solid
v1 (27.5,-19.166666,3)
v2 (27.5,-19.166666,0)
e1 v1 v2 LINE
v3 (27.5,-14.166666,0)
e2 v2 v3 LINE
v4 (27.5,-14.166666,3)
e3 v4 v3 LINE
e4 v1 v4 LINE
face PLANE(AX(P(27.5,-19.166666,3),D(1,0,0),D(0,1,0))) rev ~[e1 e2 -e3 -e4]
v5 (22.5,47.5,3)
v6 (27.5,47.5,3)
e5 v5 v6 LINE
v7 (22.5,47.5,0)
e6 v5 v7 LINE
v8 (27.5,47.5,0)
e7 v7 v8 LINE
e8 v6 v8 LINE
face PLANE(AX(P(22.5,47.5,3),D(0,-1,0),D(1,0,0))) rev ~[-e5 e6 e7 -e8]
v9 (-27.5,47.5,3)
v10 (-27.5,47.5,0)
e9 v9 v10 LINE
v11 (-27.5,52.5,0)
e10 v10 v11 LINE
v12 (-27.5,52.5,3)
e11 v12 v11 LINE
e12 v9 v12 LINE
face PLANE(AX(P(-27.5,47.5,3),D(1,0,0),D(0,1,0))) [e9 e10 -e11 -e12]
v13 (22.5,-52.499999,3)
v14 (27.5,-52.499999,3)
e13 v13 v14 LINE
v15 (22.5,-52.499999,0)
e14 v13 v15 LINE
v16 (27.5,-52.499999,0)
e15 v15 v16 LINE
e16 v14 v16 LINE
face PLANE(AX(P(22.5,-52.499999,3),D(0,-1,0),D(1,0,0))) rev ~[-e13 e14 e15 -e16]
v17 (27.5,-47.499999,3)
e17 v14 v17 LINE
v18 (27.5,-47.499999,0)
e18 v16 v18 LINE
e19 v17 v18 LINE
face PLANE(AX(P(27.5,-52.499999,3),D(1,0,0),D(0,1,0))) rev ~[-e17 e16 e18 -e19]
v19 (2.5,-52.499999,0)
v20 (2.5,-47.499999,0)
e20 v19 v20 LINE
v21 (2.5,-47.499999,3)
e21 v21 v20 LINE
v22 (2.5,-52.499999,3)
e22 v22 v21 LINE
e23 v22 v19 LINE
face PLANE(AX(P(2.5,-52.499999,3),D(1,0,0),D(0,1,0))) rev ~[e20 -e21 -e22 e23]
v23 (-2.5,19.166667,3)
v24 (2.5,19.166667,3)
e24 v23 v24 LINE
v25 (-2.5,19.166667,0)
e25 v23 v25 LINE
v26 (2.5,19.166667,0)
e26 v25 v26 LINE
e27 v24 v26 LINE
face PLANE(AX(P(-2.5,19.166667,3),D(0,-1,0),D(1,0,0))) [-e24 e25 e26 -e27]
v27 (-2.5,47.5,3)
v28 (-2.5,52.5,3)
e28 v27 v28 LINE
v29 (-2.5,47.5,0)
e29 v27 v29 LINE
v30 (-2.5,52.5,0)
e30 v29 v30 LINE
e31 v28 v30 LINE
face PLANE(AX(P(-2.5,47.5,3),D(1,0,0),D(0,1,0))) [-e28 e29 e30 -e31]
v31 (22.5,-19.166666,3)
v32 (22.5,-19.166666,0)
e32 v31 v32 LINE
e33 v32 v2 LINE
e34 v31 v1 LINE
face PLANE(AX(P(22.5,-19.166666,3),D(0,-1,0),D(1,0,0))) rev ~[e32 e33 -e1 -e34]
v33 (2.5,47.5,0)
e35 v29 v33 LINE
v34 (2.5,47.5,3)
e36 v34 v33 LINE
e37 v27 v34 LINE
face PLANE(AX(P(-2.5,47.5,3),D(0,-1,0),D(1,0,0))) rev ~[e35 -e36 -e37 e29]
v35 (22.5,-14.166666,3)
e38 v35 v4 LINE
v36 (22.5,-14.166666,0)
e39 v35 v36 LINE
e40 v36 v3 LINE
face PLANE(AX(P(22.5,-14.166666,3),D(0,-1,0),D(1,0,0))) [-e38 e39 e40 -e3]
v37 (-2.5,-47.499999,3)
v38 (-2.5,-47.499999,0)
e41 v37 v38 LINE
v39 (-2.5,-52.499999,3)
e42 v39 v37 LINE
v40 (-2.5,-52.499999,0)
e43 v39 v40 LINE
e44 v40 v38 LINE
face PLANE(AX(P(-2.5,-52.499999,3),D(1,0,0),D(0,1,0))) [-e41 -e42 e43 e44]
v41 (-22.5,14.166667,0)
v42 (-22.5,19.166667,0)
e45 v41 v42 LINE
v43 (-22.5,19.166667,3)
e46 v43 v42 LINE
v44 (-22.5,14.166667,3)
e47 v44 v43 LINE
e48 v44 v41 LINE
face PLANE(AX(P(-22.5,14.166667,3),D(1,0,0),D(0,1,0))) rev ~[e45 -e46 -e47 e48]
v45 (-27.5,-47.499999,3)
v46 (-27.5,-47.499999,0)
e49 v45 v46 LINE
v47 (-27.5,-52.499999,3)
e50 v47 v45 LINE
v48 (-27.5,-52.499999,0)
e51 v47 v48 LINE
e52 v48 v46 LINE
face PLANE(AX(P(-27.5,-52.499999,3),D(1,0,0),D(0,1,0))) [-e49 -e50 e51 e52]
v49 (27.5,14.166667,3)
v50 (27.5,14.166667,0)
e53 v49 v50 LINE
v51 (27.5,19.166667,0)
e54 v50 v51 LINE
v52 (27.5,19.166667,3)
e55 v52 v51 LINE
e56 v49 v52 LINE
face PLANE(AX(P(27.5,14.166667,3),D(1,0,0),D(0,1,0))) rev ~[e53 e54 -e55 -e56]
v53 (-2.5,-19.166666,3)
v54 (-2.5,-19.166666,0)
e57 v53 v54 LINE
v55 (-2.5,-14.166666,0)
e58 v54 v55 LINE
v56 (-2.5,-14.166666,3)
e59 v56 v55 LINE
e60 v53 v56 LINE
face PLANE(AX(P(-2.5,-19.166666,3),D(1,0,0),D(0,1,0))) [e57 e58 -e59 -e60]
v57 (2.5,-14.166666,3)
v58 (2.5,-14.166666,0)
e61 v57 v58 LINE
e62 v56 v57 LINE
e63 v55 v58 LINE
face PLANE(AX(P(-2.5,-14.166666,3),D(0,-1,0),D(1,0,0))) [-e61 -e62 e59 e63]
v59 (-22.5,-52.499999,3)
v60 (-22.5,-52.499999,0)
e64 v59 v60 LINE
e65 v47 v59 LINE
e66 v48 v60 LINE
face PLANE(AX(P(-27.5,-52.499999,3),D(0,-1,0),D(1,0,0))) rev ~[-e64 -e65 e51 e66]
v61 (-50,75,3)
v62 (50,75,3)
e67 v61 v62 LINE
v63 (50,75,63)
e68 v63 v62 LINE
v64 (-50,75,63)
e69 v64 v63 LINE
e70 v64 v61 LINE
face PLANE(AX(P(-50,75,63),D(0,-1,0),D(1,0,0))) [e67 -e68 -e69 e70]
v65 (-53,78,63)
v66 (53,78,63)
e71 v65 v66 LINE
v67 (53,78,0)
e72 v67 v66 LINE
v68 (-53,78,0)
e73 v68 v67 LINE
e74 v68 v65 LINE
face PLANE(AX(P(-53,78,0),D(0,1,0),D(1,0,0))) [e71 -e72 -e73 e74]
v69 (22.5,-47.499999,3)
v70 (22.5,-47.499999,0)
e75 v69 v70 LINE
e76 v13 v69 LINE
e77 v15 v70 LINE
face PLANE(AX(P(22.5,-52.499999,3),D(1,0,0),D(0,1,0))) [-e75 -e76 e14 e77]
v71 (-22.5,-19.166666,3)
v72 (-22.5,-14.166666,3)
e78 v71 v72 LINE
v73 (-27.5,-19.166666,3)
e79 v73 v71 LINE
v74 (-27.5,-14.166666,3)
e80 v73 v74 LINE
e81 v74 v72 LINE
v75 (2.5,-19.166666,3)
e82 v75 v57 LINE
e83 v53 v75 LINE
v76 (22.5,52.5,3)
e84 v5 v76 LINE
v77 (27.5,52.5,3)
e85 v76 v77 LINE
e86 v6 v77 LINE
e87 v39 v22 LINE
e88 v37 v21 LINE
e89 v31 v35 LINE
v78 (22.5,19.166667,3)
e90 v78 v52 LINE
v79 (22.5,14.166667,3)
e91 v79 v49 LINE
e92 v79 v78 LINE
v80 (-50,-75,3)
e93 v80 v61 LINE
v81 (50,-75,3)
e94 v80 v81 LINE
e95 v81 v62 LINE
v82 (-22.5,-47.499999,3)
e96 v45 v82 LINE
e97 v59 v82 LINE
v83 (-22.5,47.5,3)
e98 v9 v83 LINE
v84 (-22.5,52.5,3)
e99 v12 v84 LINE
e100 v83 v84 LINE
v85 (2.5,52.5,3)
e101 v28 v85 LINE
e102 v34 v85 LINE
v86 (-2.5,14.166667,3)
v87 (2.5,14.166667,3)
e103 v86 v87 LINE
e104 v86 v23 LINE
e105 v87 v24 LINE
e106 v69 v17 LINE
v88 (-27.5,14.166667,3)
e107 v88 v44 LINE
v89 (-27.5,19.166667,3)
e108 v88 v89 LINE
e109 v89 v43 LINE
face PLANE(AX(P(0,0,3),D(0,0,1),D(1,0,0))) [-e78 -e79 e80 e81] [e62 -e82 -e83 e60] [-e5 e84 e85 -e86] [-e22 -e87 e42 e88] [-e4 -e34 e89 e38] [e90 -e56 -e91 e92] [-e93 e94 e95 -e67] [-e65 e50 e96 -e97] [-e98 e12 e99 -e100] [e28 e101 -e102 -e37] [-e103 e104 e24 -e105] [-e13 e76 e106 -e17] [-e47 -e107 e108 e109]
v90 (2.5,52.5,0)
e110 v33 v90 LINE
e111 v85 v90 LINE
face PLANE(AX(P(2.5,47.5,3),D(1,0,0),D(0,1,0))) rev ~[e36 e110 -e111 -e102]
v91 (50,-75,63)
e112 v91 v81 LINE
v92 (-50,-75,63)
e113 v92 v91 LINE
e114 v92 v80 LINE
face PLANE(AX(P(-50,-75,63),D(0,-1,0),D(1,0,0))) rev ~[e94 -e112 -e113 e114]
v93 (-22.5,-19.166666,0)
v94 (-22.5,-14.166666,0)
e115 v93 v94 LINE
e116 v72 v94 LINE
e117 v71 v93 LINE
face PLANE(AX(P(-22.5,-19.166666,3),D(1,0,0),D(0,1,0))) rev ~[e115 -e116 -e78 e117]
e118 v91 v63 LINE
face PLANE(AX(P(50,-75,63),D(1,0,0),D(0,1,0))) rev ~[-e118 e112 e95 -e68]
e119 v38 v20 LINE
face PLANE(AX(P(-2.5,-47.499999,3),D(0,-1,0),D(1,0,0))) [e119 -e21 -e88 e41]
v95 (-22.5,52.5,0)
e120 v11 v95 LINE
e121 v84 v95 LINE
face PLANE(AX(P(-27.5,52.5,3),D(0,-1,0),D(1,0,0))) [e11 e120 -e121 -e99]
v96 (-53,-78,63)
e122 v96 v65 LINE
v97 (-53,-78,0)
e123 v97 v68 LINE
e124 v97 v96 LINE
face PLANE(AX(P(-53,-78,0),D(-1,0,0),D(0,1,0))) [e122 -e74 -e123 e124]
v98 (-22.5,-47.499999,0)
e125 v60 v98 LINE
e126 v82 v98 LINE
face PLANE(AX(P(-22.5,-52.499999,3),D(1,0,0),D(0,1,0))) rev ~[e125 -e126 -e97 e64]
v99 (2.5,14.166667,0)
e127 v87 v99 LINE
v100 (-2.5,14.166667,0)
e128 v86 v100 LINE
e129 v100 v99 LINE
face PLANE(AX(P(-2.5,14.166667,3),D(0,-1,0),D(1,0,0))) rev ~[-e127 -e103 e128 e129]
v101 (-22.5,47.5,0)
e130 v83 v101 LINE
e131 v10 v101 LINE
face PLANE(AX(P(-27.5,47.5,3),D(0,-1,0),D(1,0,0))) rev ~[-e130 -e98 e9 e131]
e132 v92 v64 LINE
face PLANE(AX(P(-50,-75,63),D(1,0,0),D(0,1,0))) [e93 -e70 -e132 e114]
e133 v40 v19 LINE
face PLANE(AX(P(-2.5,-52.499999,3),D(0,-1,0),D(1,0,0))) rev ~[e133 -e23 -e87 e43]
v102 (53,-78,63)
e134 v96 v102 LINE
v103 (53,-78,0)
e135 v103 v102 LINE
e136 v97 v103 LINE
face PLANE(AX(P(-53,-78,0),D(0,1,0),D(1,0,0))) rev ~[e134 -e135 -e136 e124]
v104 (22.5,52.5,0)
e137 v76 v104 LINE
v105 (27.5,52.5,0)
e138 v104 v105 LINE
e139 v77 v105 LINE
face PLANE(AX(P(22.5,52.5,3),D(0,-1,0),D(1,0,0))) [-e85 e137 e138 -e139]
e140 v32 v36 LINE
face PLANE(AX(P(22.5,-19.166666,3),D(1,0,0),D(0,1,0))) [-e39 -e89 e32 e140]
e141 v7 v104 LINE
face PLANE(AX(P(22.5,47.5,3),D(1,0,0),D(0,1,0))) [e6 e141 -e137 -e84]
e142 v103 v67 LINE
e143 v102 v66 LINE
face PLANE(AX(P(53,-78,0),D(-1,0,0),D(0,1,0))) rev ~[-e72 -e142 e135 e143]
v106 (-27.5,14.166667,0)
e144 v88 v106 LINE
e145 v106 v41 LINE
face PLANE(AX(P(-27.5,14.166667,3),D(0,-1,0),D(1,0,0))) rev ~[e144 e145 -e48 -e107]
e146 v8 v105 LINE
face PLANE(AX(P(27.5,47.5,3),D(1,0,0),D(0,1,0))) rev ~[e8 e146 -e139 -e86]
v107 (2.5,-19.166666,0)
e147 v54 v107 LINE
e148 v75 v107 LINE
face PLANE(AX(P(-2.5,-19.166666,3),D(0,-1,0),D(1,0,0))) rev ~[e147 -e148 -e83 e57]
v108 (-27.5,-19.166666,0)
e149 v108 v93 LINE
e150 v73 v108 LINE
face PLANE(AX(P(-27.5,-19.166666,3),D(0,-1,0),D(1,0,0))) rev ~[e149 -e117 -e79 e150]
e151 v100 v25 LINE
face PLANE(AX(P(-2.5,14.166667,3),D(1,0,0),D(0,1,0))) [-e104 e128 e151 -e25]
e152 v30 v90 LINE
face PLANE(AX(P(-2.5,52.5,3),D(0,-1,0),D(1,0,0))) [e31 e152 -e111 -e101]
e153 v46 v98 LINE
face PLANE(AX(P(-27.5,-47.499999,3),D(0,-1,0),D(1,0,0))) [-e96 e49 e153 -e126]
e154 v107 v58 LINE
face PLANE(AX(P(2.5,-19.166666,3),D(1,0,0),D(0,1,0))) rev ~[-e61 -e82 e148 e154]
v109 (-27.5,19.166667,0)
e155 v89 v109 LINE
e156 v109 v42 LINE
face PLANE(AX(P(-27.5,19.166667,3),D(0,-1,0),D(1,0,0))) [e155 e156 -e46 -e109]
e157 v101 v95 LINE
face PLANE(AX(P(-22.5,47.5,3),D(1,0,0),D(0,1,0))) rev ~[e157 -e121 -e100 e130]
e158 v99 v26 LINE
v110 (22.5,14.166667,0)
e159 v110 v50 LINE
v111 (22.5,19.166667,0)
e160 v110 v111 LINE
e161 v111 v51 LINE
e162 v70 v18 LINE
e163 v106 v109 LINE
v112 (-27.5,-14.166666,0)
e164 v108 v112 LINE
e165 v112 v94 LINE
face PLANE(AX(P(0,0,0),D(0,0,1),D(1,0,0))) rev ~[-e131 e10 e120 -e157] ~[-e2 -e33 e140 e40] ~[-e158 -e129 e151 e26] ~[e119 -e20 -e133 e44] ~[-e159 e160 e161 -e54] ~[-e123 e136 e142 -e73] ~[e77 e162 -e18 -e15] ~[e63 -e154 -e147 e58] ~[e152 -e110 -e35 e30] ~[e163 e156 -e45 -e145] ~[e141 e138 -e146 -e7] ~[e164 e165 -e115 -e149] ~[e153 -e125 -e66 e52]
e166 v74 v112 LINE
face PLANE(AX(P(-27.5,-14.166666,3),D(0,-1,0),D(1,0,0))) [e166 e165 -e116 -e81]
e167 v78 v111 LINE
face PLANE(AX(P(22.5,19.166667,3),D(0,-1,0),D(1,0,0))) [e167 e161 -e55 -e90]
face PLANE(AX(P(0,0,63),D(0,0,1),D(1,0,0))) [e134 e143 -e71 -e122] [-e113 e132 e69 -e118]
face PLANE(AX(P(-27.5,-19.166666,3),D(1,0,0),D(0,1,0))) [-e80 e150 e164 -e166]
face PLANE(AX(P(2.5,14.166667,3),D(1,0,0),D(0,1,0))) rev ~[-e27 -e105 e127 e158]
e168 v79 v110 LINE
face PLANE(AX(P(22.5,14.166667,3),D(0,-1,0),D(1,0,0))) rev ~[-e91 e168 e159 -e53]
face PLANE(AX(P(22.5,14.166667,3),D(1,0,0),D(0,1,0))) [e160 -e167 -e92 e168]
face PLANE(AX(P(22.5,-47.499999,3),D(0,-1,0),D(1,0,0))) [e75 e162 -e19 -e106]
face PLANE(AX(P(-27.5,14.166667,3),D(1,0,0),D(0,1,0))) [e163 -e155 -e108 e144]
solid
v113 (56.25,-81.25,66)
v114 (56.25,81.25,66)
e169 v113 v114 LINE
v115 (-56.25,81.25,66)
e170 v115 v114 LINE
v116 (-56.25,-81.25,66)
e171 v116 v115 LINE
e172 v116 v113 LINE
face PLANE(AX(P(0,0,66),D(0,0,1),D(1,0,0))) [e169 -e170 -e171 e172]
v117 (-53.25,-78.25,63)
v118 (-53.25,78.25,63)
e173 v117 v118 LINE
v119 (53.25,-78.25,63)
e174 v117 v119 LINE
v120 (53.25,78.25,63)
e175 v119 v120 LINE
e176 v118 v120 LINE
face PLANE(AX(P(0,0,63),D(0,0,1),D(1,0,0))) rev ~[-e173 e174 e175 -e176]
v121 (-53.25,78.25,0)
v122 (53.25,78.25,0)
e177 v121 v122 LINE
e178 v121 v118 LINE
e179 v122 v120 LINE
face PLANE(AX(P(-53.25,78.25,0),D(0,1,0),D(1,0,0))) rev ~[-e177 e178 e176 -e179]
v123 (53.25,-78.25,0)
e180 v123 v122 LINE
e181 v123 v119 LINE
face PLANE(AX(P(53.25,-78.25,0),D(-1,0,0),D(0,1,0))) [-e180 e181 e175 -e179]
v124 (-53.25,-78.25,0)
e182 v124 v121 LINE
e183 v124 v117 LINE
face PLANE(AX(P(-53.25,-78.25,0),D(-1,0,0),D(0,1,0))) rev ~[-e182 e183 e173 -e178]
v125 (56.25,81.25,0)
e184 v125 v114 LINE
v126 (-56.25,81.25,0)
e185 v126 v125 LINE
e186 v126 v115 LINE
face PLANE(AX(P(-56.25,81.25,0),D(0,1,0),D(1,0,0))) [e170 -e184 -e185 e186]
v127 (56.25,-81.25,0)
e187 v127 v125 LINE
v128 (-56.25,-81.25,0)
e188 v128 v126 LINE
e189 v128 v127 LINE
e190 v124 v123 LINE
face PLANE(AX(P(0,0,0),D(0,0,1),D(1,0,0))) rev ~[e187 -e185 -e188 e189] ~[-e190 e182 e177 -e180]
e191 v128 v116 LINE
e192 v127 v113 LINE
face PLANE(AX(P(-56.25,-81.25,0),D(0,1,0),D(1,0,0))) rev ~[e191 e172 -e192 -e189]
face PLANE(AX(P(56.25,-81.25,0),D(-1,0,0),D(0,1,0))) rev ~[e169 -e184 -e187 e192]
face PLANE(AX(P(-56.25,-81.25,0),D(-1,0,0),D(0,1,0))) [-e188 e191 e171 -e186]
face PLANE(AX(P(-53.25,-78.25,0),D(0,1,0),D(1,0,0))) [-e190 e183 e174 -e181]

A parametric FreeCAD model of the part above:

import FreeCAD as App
import Part
import Sketcher
Q = App.Units.Quantity


def add_polygon(sketch, points):
    """Adds a closed chain of lines whose ends are joined by coincident constraints."""
    first, n = sketch.GeometryCount, len(points)
    for a, b in zip(points, points[1:] + points[:1]):
        sketch.addGeometry(Part.LineSegment(App.Vector(*a, 0), App.Vector(*b, 0)), False)
    for i in range(n):
        sketch.addConstraint(Sketcher.Constraint("Coincident", first + i, 2, first + (i + 1) % n, 1))

doc = App.newDocument("Part")
body = doc.addObject("PartDesign::Body", "Body")

# Sketch on XY plane
sketch1 = body.newObject("Sketcher::SketchObject", "Sketch")
sketch1.AttachmentSupport = (doc.getObject("XY_Plane"), [""])
sketch1.MapMode = "FlatFace"
add_polygon(sketch1, [(-53, 78), (-53, -78), (53, -78), (53, 78)])  # lines 0-3
sketch1.addConstraint([
    Sketcher.Constraint("Vertical", 0),
    Sketcher.Constraint("Horizontal", 1),
    Sketcher.Constraint("Vertical", 2),
    Sketcher.Constraint("Horizontal", 3),
    Sketcher.Constraint("Symmetric", 0, 2, 2, 2, -1, 1),
    Sketcher.Constraint("DistanceX", 1, 1, 1, 2, Q("106 mm")),
    Sketcher.Constraint("DistanceY", 0, 2, 0, 1, Q("156 mm")),
])
pad1 = body.newObject("PartDesign::Pad", "Pad")
pad1.Profile = sketch1
pad1.Length = 63

# Sketch on XY plane
sketch2 = body.newObject("Sketcher::SketchObject", "Sketch001")
sketch2.AttachmentSupport = (doc.getObject("XY_Plane"), [""])
sketch2.MapMode = "FlatFace"
sketch2.AttachmentOffset = App.Placement(App.Vector(0, 0, 63), App.Rotation())
add_polygon(sketch2, [(-50, 75), (-50, -75), (50, -75), (50, 75)])  # lines 0-3
sketch2.addConstraint([
    Sketcher.Constraint("Vertical", 0),
    Sketcher.Constraint("Horizontal", 1),
    Sketcher.Constraint("Vertical", 2),
    Sketcher.Constraint("Horizontal", 3),
    Sketcher.Constraint("Symmetric", 0, 2, 2, 2, -1, 1),
    Sketcher.Constraint("DistanceX", 1, 1, 1, 2, Q("100 mm")),
    Sketcher.Constraint("DistanceY", 0, 2, 0, 1, Q("150 mm")),
])
pocket1 = body.newObject("PartDesign::Pocket", "Pocket")
pocket1.Profile = sketch2
pocket1.Length = 60

# Sketch on XY plane
sketch3 = body.newObject("Sketcher::SketchObject", "Sketch002")
sketch3.AttachmentSupport = (doc.getObject("XY_Plane"), [""])
sketch3.MapMode = "FlatFace"
sketch3.AttachmentOffset = App.Placement(App.Vector(0, 0, 3), App.Rotation())
add_polygon(sketch3, [(-28, 52), (-28, 48), (-22, 48), (-22, 52)])  # lines 0-3
sketch3.addConstraint([
    Sketcher.Constraint("Vertical", 0),
    Sketcher.Constraint("Horizontal", 1),
    Sketcher.Constraint("Vertical", 2),
    Sketcher.Constraint("Horizontal", 3),
    Sketcher.Constraint("Equal", 3, 0),
    Sketcher.Constraint("DistanceX", 1, 1, 1, 2, Q("5 mm")),
    Sketcher.Constraint("DistanceX", 0, 2, -1, 1, Q("27.5 mm")),
    Sketcher.Constraint("DistanceY", -1, 1, 0, 2, Q("47.5 mm")),
])
pocket2 = body.newObject("PartDesign::Pocket", "Pocket001")
pocket2.Profile = sketch3
pocket2.Type = "ThroughAll"

# Sketch on XY plane
sketch4 = body.newObject("Sketcher::SketchObject", "Sketch003")
sketch4.AttachmentSupport = (doc.getObject("XY_Plane"), [""])
sketch4.MapMode = "FlatFace"
sketch4.AttachmentOffset = App.Placement(App.Vector(0, 0, 3), App.Rotation())
add_polygon(sketch4, [(-2, 52), (-2, 48), (2, 48), (2, 52)])  # lines 0-3
sketch4.addConstraint([
    Sketcher.Constraint("Vertical", 0),
    Sketcher.Constraint("Horizontal", 1),
    Sketcher.Constraint("Vertical", 2),
    Sketcher.Constraint("Horizontal", 3),
    Sketcher.Constraint("Equal", 3, 0),
    Sketcher.Constraint("DistanceX", 1, 1, 1, 2, Q("5 mm")),
    Sketcher.Constraint("DistanceX", 0, 2, -1, 1, Q("2.5 mm")),
    Sketcher.Constraint("DistanceY", -1, 1, 0, 2, Q("47.5 mm")),
])
pocket3 = body.newObject("PartDesign::Pocket", "Pocket002")
pocket3.Profile = sketch4
pocket3.Type = "ThroughAll"

# Sketch on XY plane
sketch5 = body.newObject("Sketcher::SketchObject", "Sketch004")
sketch5.AttachmentSupport = (doc.getObject("XY_Plane"), [""])
sketch5.MapMode = "FlatFace"
sketch5.AttachmentOffset = App.Placement(App.Vector(0, 0, 3), App.Rotation())
add_polygon(sketch5, [(22, 52), (22, 48), (28, 48), (28, 52)])  # lines 0-3
sketch5.addConstraint([
    Sketcher.Constraint("Vertical", 0),
    Sketcher.Constraint("Horizontal", 1),
    Sketcher.Constraint("Vertical", 2),
    Sketcher.Constraint("Horizontal", 3),
    Sketcher.Constraint("Equal", 3, 0),
    Sketcher.Constraint("DistanceX", 1, 1, 1, 2, Q("5 mm")),
    Sketcher.Constraint("DistanceX", -1, 1, 0, 2, Q("22.5 mm")),
    Sketcher.Constraint("DistanceY", -1, 1, 0, 2, Q("47.5 mm")),
])
pocket4 = body.newObject("PartDesign::Pocket", "Pocket003")
pocket4.Profile = sketch5
pocket4.Type = "ThroughAll"
doc.recompute()

linearpattern = body.newObject("PartDesign::LinearPattern", "LinearPattern")
linearpattern.Originals = [pocket2, pocket3, pocket4]
linearpattern.Direction = (doc.getObject("Y_Axis"), [""])
linearpattern.Mode = "offset"
linearpattern.Offset = 33.333333
linearpattern.Occurrences = 4
linearpattern.Reversed = True
body.Tip = linearpattern
body2 = doc.addObject("PartDesign::Body", "Body001")

# Sketch on XY plane
sketch6 = body2.newObject("Sketcher::SketchObject", "Sketch005")
sketch6.AttachmentSupport = (doc.getObject("XY_Plane001"), [""])
sketch6.MapMode = "FlatFace"
add_polygon(sketch6, [(-56, 81), (-56, -81), (56, -81), (56, 81)])  # lines 0-3
sketch6.addConstraint([
    Sketcher.Constraint("Vertical", 0),
    Sketcher.Constraint("Horizontal", 1),
    Sketcher.Constraint("Vertical", 2),
    Sketcher.Constraint("Horizontal", 3),
    Sketcher.Constraint("Symmetric", 0, 2, 2, 2, -1, 1),
    Sketcher.Constraint("DistanceX", 1, 1, 1, 2, Q("112.5 mm")),
    Sketcher.Constraint("DistanceY", 0, 2, 0, 1, Q("162.5 mm")),
])
pad2 = body2.newObject("PartDesign::Pad", "Pad001")
pad2.Profile = sketch6
pad2.Length = 66

# Sketch on XY plane
sketch7 = body2.newObject("Sketcher::SketchObject", "Sketch006")
sketch7.AttachmentSupport = (doc.getObject("XY_Plane001"), [""])
sketch7.MapMode = "FlatFace"
add_polygon(sketch7, [(-53, 78), (-53, -78), (53, -78), (53, 78)])  # lines 0-3
sketch7.addConstraint([
    Sketcher.Constraint("Vertical", 0),
    Sketcher.Constraint("Horizontal", 1),
    Sketcher.Constraint("Vertical", 2),
    Sketcher.Constraint("Horizontal", 3),
    Sketcher.Constraint("Symmetric", 0, 2, 2, 2, -1, 1),
    Sketcher.Constraint("DistanceX", 1, 1, 1, 2, Q("106.5 mm")),
    Sketcher.Constraint("DistanceY", 0, 2, 0, 1, Q("156.5 mm")),
])
pocket5 = body2.newObject("PartDesign::Pocket", "Pocket004")
pocket5.Profile = sketch7
pocket5.Length = 63
pocket5.Reversed = True

doc.recompute()
